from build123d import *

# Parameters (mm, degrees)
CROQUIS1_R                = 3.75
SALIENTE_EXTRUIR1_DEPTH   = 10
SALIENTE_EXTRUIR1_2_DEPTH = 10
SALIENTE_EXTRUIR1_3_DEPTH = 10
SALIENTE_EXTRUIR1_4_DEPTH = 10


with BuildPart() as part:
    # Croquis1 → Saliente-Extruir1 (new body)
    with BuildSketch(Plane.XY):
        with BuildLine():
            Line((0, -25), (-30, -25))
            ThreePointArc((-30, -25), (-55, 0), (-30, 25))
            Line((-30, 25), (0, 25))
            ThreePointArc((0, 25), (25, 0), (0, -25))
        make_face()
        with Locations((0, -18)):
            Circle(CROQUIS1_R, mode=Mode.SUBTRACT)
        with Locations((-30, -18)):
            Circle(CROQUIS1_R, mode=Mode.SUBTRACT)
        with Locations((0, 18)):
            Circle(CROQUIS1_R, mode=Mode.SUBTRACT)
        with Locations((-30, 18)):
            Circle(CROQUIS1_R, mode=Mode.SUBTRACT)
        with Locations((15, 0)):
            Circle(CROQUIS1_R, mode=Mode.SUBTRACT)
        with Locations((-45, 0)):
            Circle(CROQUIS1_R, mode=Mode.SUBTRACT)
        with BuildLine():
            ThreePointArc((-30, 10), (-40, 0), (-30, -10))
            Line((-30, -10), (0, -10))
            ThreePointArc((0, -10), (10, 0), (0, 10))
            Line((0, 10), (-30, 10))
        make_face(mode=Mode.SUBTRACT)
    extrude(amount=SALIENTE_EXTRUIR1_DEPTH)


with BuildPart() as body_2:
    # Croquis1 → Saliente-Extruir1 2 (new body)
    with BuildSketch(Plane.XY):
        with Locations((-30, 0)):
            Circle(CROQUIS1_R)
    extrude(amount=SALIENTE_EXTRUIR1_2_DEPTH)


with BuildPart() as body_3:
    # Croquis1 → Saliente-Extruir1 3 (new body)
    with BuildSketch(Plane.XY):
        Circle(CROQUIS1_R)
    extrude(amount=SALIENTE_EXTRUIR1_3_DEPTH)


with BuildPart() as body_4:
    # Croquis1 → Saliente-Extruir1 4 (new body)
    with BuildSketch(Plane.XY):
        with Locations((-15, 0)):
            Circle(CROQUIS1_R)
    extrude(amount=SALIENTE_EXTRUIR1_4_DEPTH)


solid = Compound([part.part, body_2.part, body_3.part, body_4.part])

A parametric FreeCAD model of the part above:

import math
import FreeCAD as App
import Part
import Sketcher

doc = App.newDocument("Part")
body = doc.addObject("PartDesign::Body", "Body")

sketch1 = body.newObject("Sketcher::SketchObject", "Sketch")
sketch1.AttachmentSupport = (doc.getObject("XY_Plane"), [""])
sketch1.MapMode = "FlatFace"
sketch1.addGeometry(Part.LineSegment(App.Vector(-30, -25, 0), App.Vector(0, -25, 0)), False)
sketch1.addGeometry(Part.ArcOfCircle(Part.Circle(App.Vector(0, 0, 0), App.Vector(0, 0, 1), 25), math.radians(-90), math.radians(90)), False)
sketch1.addGeometry(Part.LineSegment(App.Vector(0, 25, 0), App.Vector(-30, 25, 0)), False)
sketch1.addGeometry(Part.ArcOfCircle(Part.Circle(App.Vector(-30, 0, 0), App.Vector(0, 0, 1), 25), math.radians(90), math.radians(270)), False)
sketch1.addGeometry(Part.Circle(App.Vector(0, -18, 0), App.Vector(0, 0, 1), 3.8), False)
sketch1.addGeometry(Part.Circle(App.Vector(-30, -18, 0), App.Vector(0, 0, 1), 3.8), False)
sketch1.addGeometry(Part.Circle(App.Vector(15, 0, 0), App.Vector(0, 0, 1), 3.8), False)
sketch1.addGeometry(Part.Circle(App.Vector(0, 18, 0), App.Vector(0, 0, 1), 3.8), False)
sketch1.addGeometry(Part.LineSegment(App.Vector(-30, 10, 0), App.Vector(0, 10, 0)), False)
sketch1.addGeometry(Part.ArcOfCircle(Part.Circle(App.Vector(0, 0, 0), App.Vector(0, 0, 1), 10), math.radians(-90), math.radians(90)), False)
sketch1.addGeometry(Part.LineSegment(App.Vector(0, -10, 0), App.Vector(-30, -10, 0)), False)
sketch1.addGeometry(Part.ArcOfCircle(Part.Circle(App.Vector(-30, 0, 0), App.Vector(0, 0, 1), 10), math.radians(90), math.radians(270)), False)
sketch1.addGeometry(Part.Circle(App.Vector(-45, 0, 0), App.Vector(0, 0, 1), 3.8), False)
sketch1.addGeometry(Part.Circle(App.Vector(-30, 18, 0), App.Vector(0, 0, 1), 3.8), False)
sketch1.addConstraint(Sketcher.Constraint("Tangent", 0, 2, 1, 1))
sketch1.addConstraint(Sketcher.Constraint("Tangent", 1, 2, 2, 1))
sketch1.addConstraint(Sketcher.Constraint("Tangent", 2, 2, 3, 1))
sketch1.addConstraint(Sketcher.Constraint("Tangent", 3, 2, 0, 1))
sketch1.addConstraint(Sketcher.Constraint("Tangent", 8, 2, 9, 2))
sketch1.addConstraint(Sketcher.Constraint("Tangent", 9, 1, 10, 1))
sketch1.addConstraint(Sketcher.Constraint("Tangent", 10, 2, 11, 2))
sketch1.addConstraint(Sketcher.Constraint("Tangent", 11, 1, 8, 1))
sketch1.addConstraint(Sketcher.Constraint("Horizontal", 0))
sketch1.addConstraint(Sketcher.Constraint("Horizontal", 2))
sketch1.addConstraint(Sketcher.Constraint("Horizontal", 8))
sketch1.addConstraint(Sketcher.Constraint("Horizontal", 10))
sketch1.addConstraint(Sketcher.Constraint("Coincident", 1, 3, -1, 1))
sketch1.addConstraint(Sketcher.Constraint("Coincident", 9, 3, -1, 1))
sketch1.addConstraint(Sketcher.Constraint("Equal", 4, 5))
sketch1.addConstraint(Sketcher.Constraint("Equal", 5, 6))
sketch1.addConstraint(Sketcher.Constraint("Equal", 6, 7))
sketch1.addConstraint(Sketcher.Constraint("Equal", 7, 12))
sketch1.addConstraint(Sketcher.Constraint("Equal", 12, 13))
sketch1.addConstraint(Sketcher.Constraint("Symmetric", 4, 3, 7, 3, -1, 1))
sketch1.addConstraint(Sketcher.Constraint("Symmetric", 5, 3, 13, 3, -1))
sketch1.addConstraint(Sketcher.Constraint("PointOnObject", 4, 3, -2))
sketch1.addConstraint(Sketcher.Constraint("PointOnObject", 6, 3, -1))
sketch1.addConstraint(Sketcher.Constraint("PointOnObject", 12, 3, -1))
sketch1.addConstraint(Sketcher.Constraint("Horizontal", 4, 3, 5, 3))
sketch1.addConstraint(Sketcher.Constraint("Vertical", 3, 3, 5, 3))
sketch1.addConstraint(Sketcher.Constraint("Vertical", 5, 3, 11, 3))
sketch1.addConstraint(Sketcher.Constraint("Radius", 1, 25.0))
sketch1.addConstraint(Sketcher.Constraint("Radius", 9, 10.0))
sketch1.addConstraint(Sketcher.Constraint("Diameter", 4, 7.5))
sketch1.addConstraint(Sketcher.Constraint("DistanceX", 0, 1, 0, 2, 30.0))
sketch1.addConstraint(Sketcher.Constraint("DistanceY", 4, 3, -1, 1, 18.0))
sketch1.addConstraint(Sketcher.Constraint("DistanceX", -1, 1, 6, 3, 15.0))
sketch1.addConstraint(Sketcher.Constraint("DistanceX", 12, 3, -1, 1, 45.0))
pad1 = body.newObject("PartDesign::Pad", "Pad")
pad1.Profile = sketch1
pad1.Length = 10
body2 = doc.addObject("PartDesign::Body", "Body001")

sketch2 = body2.newObject("Sketcher::SketchObject", "Sketch001")
sketch2.AttachmentSupport = (doc.getObject("XY_Plane001"), [""])
sketch2.MapMode = "FlatFace"
sketch2.addGeometry(Part.Circle(App.Vector(-30, 0, 0), App.Vector(0, 0, 1), 3.8), False)
sketch2.addConstraint(Sketcher.Constraint("PointOnObject", 0, 3, -1))
sketch2.addConstraint(Sketcher.Constraint("Diameter", 0, 7.5))
sketch2.addConstraint(Sketcher.Constraint("DistanceX", 0, 3, -1, 1, 30.0))
pad2 = body2.newObject("PartDesign::Pad", "Pad001")
pad2.Profile = sketch2
pad2.Length = 10
body3 = doc.addObject("PartDesign::Body", "Body002")

sketch3 = body3.newObject("Sketcher::SketchObject", "Sketch002")
sketch3.AttachmentSupport = (doc.getObject("XY_Plane002"), [""])
sketch3.MapMode = "FlatFace"
sketch3.addGeometry(Part.Circle(App.Vector(0, 0, 0), App.Vector(0, 0, 1), 3.8), False)
sketch3.addConstraint(Sketcher.Constraint("Coincident", 0, 3, -1, 1))
sketch3.addConstraint(Sketcher.Constraint("Diameter", 0, 7.5))
pad3 = body3.newObject("PartDesign::Pad", "Pad002")
pad3.Profile = sketch3
pad3.Length = 10
body4 = doc.addObject("PartDesign::Body", "Body003")

sketch4 = body4.newObject("Sketcher::SketchObject", "Sketch003")
sketch4.AttachmentSupport = (doc.getObject("XY_Plane003"), [""])
sketch4.MapMode = "FlatFace"
sketch4.addGeometry(Part.Circle(App.Vector(-15, 0, 0), App.Vector(0, 0, 1), 3.8), False)
sketch4.addConstraint(Sketcher.Constraint("PointOnObject", 0, 3, -1))
sketch4.addConstraint(Sketcher.Constraint("Diameter", 0, 7.5))
sketch4.addConstraint(Sketcher.Constraint("DistanceX", 0, 3, -1, 1, 15.0))
pad4 = body4.newObject("PartDesign::Pad", "Pad003")
pad4.Profile = sketch4
pad4.Length = 10

doc.recompute()
